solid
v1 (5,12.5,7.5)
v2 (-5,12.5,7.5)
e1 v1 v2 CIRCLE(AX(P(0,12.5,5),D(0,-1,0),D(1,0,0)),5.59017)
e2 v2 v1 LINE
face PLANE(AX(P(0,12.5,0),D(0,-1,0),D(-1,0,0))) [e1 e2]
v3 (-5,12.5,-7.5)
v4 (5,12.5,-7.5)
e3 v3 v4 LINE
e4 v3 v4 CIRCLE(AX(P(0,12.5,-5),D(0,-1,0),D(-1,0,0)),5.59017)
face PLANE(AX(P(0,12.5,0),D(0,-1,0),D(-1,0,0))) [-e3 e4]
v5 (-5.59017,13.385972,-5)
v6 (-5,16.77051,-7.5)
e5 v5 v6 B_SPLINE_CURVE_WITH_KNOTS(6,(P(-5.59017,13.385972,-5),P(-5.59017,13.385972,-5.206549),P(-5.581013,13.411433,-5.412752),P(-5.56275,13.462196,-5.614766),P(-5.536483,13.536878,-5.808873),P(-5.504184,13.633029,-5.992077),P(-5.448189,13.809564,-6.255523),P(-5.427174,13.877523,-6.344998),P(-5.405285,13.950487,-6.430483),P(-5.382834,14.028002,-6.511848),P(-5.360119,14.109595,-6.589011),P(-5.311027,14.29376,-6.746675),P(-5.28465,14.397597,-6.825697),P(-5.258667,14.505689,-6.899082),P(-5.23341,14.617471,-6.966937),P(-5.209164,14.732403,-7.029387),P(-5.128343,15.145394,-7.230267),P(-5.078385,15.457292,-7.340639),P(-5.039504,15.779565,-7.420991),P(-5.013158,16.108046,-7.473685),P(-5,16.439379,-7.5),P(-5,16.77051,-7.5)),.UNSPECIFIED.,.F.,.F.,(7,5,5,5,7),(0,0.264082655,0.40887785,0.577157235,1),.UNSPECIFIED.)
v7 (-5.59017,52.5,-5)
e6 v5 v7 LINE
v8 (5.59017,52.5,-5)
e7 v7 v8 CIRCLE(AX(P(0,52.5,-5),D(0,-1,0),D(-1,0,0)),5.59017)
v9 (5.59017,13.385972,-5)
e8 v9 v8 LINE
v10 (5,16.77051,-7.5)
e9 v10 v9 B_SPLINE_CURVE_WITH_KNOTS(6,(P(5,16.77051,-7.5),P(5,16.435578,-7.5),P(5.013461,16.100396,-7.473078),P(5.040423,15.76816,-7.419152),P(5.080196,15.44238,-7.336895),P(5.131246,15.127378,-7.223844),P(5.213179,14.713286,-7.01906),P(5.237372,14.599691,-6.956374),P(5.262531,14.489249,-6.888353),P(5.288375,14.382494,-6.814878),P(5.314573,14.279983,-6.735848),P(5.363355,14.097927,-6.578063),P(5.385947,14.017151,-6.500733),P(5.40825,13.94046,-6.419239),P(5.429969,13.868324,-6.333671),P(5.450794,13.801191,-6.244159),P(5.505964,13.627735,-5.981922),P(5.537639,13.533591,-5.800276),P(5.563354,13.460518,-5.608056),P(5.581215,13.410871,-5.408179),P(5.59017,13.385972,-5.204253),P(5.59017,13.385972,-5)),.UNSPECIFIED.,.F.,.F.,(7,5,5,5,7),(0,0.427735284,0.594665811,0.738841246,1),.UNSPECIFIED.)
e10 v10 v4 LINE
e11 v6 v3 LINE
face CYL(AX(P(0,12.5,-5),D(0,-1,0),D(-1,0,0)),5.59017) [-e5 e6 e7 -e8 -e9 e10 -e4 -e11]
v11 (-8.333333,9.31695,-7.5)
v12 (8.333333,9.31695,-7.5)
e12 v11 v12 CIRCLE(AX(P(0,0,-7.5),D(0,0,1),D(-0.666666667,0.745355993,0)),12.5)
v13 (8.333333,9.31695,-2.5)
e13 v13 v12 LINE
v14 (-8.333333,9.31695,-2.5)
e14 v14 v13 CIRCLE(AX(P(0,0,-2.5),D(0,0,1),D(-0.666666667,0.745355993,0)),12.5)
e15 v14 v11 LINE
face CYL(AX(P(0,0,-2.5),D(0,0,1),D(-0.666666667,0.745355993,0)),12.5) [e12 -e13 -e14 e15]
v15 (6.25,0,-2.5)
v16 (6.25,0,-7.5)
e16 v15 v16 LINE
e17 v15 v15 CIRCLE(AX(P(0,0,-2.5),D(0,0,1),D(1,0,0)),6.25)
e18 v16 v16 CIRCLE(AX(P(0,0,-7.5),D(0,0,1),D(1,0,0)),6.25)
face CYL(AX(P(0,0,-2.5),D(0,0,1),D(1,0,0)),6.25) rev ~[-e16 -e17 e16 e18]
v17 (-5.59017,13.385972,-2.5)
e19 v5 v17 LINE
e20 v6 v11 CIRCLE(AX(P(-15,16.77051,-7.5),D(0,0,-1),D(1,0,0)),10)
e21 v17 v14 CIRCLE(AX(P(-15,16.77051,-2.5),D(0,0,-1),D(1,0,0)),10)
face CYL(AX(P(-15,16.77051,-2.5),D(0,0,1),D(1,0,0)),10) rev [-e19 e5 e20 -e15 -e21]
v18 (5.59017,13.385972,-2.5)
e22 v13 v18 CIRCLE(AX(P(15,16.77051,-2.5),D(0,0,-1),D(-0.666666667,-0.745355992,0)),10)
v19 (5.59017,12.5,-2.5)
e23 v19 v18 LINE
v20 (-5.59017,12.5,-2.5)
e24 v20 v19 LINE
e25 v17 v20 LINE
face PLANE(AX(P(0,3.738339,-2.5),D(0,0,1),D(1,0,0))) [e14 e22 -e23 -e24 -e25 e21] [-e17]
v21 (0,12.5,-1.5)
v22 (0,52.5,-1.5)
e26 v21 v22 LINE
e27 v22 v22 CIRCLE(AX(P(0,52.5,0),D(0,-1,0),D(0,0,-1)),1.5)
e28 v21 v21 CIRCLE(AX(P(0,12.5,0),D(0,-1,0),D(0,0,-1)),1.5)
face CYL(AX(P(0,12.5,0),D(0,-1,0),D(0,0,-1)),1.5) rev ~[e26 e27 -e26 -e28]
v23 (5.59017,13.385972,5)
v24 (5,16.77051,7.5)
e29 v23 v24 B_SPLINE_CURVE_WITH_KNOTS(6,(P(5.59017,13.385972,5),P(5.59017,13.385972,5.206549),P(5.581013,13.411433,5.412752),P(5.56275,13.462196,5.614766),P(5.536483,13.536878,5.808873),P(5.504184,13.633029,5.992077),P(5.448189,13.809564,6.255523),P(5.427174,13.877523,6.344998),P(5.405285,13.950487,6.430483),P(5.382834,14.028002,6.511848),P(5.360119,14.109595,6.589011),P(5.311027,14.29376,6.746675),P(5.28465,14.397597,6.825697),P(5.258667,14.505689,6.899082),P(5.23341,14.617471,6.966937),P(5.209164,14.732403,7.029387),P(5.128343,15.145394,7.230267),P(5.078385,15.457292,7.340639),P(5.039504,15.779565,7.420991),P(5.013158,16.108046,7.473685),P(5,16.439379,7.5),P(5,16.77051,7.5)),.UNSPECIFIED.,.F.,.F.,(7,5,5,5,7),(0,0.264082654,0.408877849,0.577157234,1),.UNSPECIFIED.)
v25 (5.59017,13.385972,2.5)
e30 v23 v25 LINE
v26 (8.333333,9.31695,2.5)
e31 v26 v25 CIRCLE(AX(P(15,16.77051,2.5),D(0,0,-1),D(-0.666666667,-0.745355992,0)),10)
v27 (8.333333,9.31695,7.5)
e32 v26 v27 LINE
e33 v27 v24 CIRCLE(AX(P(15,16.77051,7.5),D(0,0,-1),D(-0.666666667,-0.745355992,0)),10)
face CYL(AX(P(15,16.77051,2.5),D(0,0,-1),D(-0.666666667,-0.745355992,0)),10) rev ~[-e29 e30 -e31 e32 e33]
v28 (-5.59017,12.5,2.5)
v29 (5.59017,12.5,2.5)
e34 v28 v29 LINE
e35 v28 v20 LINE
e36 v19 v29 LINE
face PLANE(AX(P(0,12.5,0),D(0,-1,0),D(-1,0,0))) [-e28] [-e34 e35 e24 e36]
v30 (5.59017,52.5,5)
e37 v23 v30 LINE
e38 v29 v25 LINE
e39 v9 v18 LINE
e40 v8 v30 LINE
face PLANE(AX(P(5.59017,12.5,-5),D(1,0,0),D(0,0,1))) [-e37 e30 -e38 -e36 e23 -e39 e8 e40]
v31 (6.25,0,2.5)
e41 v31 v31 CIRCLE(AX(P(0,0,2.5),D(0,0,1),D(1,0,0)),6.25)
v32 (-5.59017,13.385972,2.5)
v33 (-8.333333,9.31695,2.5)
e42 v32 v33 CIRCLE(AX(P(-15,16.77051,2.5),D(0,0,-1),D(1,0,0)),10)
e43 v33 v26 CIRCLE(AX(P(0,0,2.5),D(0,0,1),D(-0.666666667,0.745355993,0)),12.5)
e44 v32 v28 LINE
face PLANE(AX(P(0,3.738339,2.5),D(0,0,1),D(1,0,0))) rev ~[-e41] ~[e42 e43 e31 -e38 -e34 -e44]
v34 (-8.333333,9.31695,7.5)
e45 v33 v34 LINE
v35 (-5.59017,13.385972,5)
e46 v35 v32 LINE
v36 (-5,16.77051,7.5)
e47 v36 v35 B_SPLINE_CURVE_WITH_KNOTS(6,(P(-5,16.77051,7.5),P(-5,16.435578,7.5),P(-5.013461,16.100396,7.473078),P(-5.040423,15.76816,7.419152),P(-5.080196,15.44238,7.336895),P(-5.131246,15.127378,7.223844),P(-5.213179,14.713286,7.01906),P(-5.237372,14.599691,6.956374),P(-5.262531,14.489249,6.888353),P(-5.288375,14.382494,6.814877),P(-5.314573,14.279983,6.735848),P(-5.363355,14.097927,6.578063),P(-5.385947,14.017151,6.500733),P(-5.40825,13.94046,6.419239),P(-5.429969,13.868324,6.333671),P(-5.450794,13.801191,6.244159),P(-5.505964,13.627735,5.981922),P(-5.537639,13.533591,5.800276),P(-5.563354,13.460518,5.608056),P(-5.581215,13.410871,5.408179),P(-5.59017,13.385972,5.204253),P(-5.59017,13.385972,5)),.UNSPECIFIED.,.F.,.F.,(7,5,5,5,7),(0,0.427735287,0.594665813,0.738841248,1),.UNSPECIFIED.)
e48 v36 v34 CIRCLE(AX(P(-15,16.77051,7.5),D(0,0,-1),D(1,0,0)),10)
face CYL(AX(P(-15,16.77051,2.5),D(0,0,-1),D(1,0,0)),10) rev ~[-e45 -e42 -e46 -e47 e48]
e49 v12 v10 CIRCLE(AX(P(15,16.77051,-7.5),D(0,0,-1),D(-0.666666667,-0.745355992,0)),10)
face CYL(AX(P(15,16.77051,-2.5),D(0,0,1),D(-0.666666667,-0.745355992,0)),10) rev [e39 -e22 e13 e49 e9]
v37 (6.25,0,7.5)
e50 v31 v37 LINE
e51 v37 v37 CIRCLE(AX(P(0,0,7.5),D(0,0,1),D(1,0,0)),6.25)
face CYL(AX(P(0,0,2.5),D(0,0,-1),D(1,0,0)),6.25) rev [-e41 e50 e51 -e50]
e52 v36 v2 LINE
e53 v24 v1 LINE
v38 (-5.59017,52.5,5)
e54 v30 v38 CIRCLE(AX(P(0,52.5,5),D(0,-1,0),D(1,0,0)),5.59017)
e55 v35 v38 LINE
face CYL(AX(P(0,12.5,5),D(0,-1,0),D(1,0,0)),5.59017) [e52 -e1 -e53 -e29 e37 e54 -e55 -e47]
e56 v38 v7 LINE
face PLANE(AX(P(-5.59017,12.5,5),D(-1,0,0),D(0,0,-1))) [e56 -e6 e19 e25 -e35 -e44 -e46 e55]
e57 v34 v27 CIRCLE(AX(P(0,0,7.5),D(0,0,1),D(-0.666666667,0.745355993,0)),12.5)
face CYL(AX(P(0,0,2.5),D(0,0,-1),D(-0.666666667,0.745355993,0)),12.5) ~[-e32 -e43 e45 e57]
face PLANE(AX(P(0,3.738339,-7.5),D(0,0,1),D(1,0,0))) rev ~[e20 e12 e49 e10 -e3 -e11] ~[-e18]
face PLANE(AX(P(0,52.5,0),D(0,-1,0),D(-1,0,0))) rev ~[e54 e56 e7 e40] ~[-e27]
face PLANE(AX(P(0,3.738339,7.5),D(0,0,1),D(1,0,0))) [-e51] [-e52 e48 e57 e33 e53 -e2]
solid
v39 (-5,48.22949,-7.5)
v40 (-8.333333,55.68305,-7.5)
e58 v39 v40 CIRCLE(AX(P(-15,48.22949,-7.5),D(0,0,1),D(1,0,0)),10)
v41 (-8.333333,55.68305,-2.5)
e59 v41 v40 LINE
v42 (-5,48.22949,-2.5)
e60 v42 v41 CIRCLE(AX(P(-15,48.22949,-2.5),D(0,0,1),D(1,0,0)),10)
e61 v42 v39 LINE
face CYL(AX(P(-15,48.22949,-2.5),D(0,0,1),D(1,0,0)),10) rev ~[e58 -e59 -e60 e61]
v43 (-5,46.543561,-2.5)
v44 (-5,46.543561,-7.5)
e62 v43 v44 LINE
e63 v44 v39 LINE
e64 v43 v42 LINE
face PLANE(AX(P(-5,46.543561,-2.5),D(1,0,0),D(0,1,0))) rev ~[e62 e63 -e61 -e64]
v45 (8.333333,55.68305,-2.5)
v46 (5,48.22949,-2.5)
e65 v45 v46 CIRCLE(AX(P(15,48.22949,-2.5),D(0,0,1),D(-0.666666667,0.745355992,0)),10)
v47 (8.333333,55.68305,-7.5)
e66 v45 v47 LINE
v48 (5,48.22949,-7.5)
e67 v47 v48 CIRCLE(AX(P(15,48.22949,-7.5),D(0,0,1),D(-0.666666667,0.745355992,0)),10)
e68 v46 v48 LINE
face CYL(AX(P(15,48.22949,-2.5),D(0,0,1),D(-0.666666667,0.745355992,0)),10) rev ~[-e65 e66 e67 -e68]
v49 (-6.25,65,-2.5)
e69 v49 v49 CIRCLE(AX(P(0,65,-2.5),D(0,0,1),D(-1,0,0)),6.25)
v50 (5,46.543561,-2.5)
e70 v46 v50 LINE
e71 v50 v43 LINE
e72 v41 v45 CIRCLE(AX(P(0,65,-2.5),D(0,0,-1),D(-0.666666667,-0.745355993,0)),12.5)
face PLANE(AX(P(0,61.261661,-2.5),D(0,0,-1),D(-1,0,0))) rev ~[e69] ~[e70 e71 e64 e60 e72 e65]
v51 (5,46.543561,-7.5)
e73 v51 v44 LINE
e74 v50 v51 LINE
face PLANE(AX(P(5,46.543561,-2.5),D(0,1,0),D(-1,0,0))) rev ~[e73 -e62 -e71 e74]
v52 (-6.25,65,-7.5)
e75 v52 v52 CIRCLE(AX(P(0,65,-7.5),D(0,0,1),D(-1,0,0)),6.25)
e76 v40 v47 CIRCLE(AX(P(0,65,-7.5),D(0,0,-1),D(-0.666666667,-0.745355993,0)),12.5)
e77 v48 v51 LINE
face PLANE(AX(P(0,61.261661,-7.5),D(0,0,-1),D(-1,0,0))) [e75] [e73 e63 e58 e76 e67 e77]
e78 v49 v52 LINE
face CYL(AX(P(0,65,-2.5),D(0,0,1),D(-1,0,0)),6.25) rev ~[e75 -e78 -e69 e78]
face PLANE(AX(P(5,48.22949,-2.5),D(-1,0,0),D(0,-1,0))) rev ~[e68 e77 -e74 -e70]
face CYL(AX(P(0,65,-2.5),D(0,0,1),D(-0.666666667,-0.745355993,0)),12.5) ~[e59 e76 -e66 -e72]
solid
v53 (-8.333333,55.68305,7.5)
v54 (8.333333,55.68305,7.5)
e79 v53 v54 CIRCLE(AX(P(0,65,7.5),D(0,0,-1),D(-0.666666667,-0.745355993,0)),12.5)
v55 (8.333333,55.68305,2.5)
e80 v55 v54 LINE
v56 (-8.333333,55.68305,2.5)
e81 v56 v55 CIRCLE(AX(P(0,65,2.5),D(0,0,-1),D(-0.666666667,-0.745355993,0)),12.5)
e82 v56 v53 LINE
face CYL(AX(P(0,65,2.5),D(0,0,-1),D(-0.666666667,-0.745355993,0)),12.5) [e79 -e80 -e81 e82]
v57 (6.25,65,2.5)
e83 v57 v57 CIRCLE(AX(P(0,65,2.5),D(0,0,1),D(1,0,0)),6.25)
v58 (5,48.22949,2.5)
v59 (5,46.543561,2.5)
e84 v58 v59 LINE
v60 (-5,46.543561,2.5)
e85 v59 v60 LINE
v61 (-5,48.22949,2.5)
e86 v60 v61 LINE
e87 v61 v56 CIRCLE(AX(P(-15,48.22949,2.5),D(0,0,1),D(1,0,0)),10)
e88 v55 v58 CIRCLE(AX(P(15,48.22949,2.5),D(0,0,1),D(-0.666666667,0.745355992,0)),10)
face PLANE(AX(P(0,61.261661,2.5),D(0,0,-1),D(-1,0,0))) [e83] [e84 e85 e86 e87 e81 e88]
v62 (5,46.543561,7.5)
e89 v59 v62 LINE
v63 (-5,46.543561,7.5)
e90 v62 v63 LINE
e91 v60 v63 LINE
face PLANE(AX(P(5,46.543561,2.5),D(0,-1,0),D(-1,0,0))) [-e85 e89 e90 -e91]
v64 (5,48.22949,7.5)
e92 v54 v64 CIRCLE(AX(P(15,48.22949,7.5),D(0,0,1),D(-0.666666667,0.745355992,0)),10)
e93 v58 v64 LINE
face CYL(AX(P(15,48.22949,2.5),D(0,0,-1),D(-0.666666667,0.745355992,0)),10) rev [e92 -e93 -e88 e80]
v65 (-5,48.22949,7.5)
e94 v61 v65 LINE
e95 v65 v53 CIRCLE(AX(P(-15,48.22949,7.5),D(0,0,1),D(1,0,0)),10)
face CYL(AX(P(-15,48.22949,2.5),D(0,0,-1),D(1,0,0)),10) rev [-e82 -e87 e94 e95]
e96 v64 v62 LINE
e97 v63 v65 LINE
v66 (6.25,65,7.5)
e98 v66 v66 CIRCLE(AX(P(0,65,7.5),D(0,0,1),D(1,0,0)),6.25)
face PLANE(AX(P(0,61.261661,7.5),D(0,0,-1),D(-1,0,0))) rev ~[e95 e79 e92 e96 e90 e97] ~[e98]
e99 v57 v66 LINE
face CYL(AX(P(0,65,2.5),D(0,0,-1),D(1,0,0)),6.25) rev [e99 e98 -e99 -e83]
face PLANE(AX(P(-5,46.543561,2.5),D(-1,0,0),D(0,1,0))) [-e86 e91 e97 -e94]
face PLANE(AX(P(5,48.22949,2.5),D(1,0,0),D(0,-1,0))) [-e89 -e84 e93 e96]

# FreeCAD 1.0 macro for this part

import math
import FreeCAD as App
import Part
import Sketcher
from FreeCAD import Vector

doc = App.newDocument("Part")
body = doc.addObject("PartDesign::Body", "Body")

# Sketch on XY plane
sketch1 = body.newObject("Sketcher::SketchObject", "Sketch")
sketch1.AttachmentSupport = (doc.getObject("XY_Plane"), [""])
sketch1.MapMode = "FlatFace"
sketch1.AttachmentOffset = App.Placement(Vector(0, 0, 2.5), App.Rotation())
sketch1.addGeometry([
    Part.LineSegment(Vector(5, 18.456439, 0), Vector(-5, 18.456439, 0)),  # 0
    Part.LineSegment(Vector(-5, 18.456439, 0), Vector(-5, 16.77051, 0)),  # 1
    Part.ArcOfCircle(Part.Circle(Vector(-15, 16.77051, 0), Vector(0, 0, 1), 10), math.radians(-48.189685), math.radians(0)),  # 2
    Part.ArcOfCircle(Part.Circle(Vector(0, 0, 0), Vector(0, 0, 1), 12.5), math.radians(131.810315), math.radians(408.189685)),  # 3
    Part.ArcOfCircle(Part.Circle(Vector(15, 16.77051, 0), Vector(0, 0, 1), 10), math.radians(180), math.radians(228.189685)),  # 4
    Part.LineSegment(Vector(5, 16.77051, 0), Vector(5, 18.456439, 0)),  # 5
    Part.Circle(Vector(0, 0, 0), Vector(0, 0, 1), 6.25),  # 6
], False)
sketch1.addConstraint([
    Sketcher.Constraint("Coincident", 0, 2, 1, 1),
    Sketcher.Constraint("Tangent", 1, 2, 2, 2),
    Sketcher.Constraint("Tangent", 2, 1, 3, 1),
    Sketcher.Constraint("Tangent", 3, 2, 4, 2),
    Sketcher.Constraint("Tangent", 4, 1, 5, 1),
    Sketcher.Constraint("Coincident", 5, 2, 0, 1),
    Sketcher.Constraint("Horizontal", 0),
    Sketcher.Constraint("Vertical", 1),
    Sketcher.Constraint("Vertical", 5),
    Sketcher.Constraint("Coincident", 3, 3, -1, 1),
    Sketcher.Constraint("Coincident", 6, 3, -1, 1),
    Sketcher.Constraint("Equal", 2, 4),
    Sketcher.Constraint("Horizontal", 2, 3, 4, 3),
    Sketcher.Constraint("Radius", 2, 10.0),
    Sketcher.Constraint("Diameter", 6, 12.5),
    Sketcher.Constraint("Radius", 3, 12.5),
    Sketcher.Constraint("DistanceX", 0, 2, 0, 1, 10.0),
    Sketcher.Constraint("DistanceY", 1, 2, 1, 1, 1.685929),
])
pad1 = body.newObject("PartDesign::Pad", "Pad")
pad1.Profile = sketch1
pad1.Length = 5
body2 = doc.addObject("PartDesign::Body", "Body001")

# Sketch on XY plane
sketch2 = body2.newObject("Sketcher::SketchObject", "Sketch001")
sketch2.AttachmentSupport = (doc.getObject("XY_Plane001"), [""])
sketch2.MapMode = "FlatFace"
sketch2.AttachmentOffset = App.Placement(Vector(0, 0, 2.5), App.Rotation())
sketch2.addGeometry([
    Part.LineSegment(Vector(-5, 48.22949, 0), Vector(-5, 46.543561, 0)),  # 0
    Part.LineSegment(Vector(-5, 46.543561, 0), Vector(5, 46.543561, 0)),  # 1
    Part.LineSegment(Vector(5, 46.543561, 0), Vector(5, 48.22949, 0)),  # 2
    Part.ArcOfCircle(Part.Circle(Vector(15, 48.22949, 0), Vector(0, 0, 1), 10), math.radians(131.810315), math.radians(180)),  # 3
    Part.ArcOfCircle(Part.Circle(Vector(0, 65, 0), Vector(0, 0, 1), 12.5), math.radians(-48.189685), math.radians(228.189685)),  # 4
    Part.ArcOfCircle(Part.Circle(Vector(-15, 48.22949, 0), Vector(0, 0, 1), 10), math.radians(0), math.radians(48.189685)),  # 5
    Part.Circle(Vector(0, 65, 0), Vector(0, 0, 1), 6.25),  # 6
], False)
sketch2.addConstraint([
    Sketcher.Constraint("Coincident", 0, 2, 1, 1),
    Sketcher.Constraint("Coincident", 1, 2, 2, 1),
    Sketcher.Constraint("Tangent", 2, 2, 3, 2),
    Sketcher.Constraint("Tangent", 3, 1, 4, 1),
    Sketcher.Constraint("Tangent", 4, 2, 5, 2),
    Sketcher.Constraint("Tangent", 5, 1, 0, 1),
    Sketcher.Constraint("Vertical", 0),
    Sketcher.Constraint("Horizontal", 1),
    Sketcher.Constraint("Vertical", 2),
    Sketcher.Constraint("Coincident", 6, 3, 4, 3),
    Sketcher.Constraint("Equal", 3, 5),
    Sketcher.Constraint("Symmetric", 3, 3, 5, 3, -2),
    Sketcher.Constraint("Radius", 3, 10.0),
    Sketcher.Constraint("Diameter", 6, 12.5),
    Sketcher.Constraint("Radius", 4, 12.5),
    Sketcher.Constraint("DistanceX", 1, 1, 1, 2, 10.0),
    Sketcher.Constraint("DistanceY", -1, 1, 4, 3, 65.0),
    Sketcher.Constraint("DistanceY", 0, 2, 0, 1, 1.685929),
])
pad2 = body2.newObject("PartDesign::Pad", "Pad001")
pad2.Profile = sketch2
pad2.Length = 5
body3 = doc.addObject("PartDesign::Body", "Body002")

# Sketch on XY plane
sketch3 = body3.newObject("Sketcher::SketchObject", "Sketch002")
sketch3.AttachmentSupport = (doc.getObject("XY_Plane002"), [""])
sketch3.MapMode = "FlatFace"
sketch3.AttachmentOffset = App.Placement(Vector(0, 0, -2.5), App.Rotation())
sketch3.addGeometry([
    Part.LineSegment(Vector(5, 18.456439, 0), Vector(-5, 18.456439, 0)),  # 0
    Part.LineSegment(Vector(-5, 18.456439, 0), Vector(-5, 16.77051, 0)),  # 1
    Part.ArcOfCircle(Part.Circle(Vector(-15, 16.77051, 0), Vector(0, 0, 1), 10), math.radians(-48.189685), math.radians(0)),  # 2
    Part.ArcOfCircle(Part.Circle(Vector(0, 0, 0), Vector(0, 0, 1), 12.5), math.radians(131.810315), math.radians(408.189685)),  # 3
    Part.ArcOfCircle(Part.Circle(Vector(15, 16.77051, 0), Vector(0, 0, 1), 10), math.radians(180), math.radians(228.189685)),  # 4
    Part.LineSegment(Vector(5, 16.77051, 0), Vector(5, 18.456439, 0)),  # 5
    Part.Circle(Vector(0, 0, 0), Vector(0, 0, 1), 6.25),  # 6
], False)
sketch3.addConstraint([
    Sketcher.Constraint("Coincident", 0, 2, 1, 1),
    Sketcher.Constraint("Tangent", 1, 2, 2, 2),
    Sketcher.Constraint("Tangent", 2, 1, 3, 1),
    Sketcher.Constraint("Tangent", 3, 2, 4, 2),
    Sketcher.Constraint("Tangent", 4, 1, 5, 1),
    Sketcher.Constraint("Coincident", 5, 2, 0, 1),
    Sketcher.Constraint("Horizontal", 0),
    Sketcher.Constraint("Vertical", 1),
    Sketcher.Constraint("Vertical", 5),
    Sketcher.Constraint("Coincident", 3, 3, -1, 1),
    Sketcher.Constraint("Coincident", 6, 3, -1, 1),
    Sketcher.Constraint("Equal", 2, 4),
    Sketcher.Constraint("Horizontal", 2, 3, 4, 3),
    Sketcher.Constraint("Radius", 2, 10.0),
    Sketcher.Constraint("Diameter", 6, 12.5),
    Sketcher.Constraint("Radius", 3, 12.5),
    Sketcher.Constraint("DistanceX", 0, 2, 0, 1, 10.0),
    Sketcher.Constraint("DistanceY", 1, 2, 1, 1, 1.685929),
])
pad3 = body3.newObject("PartDesign::Pad", "Pad002")
pad3.Profile = sketch3
pad3.Length = 5
pad3.Reversed = True
body4 = doc.addObject("PartDesign::Body", "Body003")

# Sketch on XY plane
sketch4 = body4.newObject("Sketcher::SketchObject", "Sketch003")
sketch4.AttachmentSupport = (doc.getObject("XY_Plane003"), [""])
sketch4.MapMode = "FlatFace"
sketch4.AttachmentOffset = App.Placement(Vector(0, 0, -2.5), App.Rotation())
sketch4.addGeometry([
    Part.LineSegment(Vector(-5, 48.22949, 0), Vector(-5, 46.543561, 0)),  # 0
    Part.LineSegment(Vector(-5, 46.543561, 0), Vector(5, 46.543561, 0)),  # 1
    Part.LineSegment(Vector(5, 46.543561, 0), Vector(5, 48.22949, 0)),  # 2
    Part.ArcOfCircle(Part.Circle(Vector(15, 48.22949, 0), Vector(0, 0, 1), 10), math.radians(131.810315), math.radians(180)),  # 3
    Part.ArcOfCircle(Part.Circle(Vector(0, 65, 0), Vector(0, 0, 1), 12.5), math.radians(-48.189685), math.radians(228.189685)),  # 4
    Part.ArcOfCircle(Part.Circle(Vector(-15, 48.22949, 0), Vector(0, 0, 1), 10), math.radians(0), math.radians(48.189685)),  # 5
    Part.Circle(Vector(0, 65, 0), Vector(0, 0, 1), 6.25),  # 6
], False)
sketch4.addConstraint([
    Sketcher.Constraint("Coincident", 0, 2, 1, 1),
    Sketcher.Constraint("Coincident", 1, 2, 2, 1),
    Sketcher.Constraint("Tangent", 2, 2, 3, 2),
    Sketcher.Constraint("Tangent", 3, 1, 4, 1),
    Sketcher.Constraint("Tangent", 4, 2, 5, 2),
    Sketcher.Constraint("Tangent", 5, 1, 0, 1),
    Sketcher.Constraint("Vertical", 0),
    Sketcher.Constraint("Horizontal", 1),
    Sketcher.Constraint("Vertical", 2),
    Sketcher.Constraint("Coincident", 6, 3, 4, 3),
    Sketcher.Constraint("Equal", 3, 5),
    Sketcher.Constraint("Symmetric", 3, 3, 5, 3, -2),
    Sketcher.Constraint("Radius", 3, 10.0),
    Sketcher.Constraint("Diameter", 6, 12.5),
    Sketcher.Constraint("Radius", 4, 12.5),
    Sketcher.Constraint("DistanceX", 1, 1, 1, 2, 10.0),
    Sketcher.Constraint("DistanceY", -1, 1, 4, 3, 65.0),
    Sketcher.Constraint("DistanceY", 0, 2, 0, 1, 1.685929),
])
pad4 = body4.newObject("PartDesign::Pad", "Pad003")
pad4.Profile = sketch4
pad4.Length = 5
pad4.Reversed = True
body.AllowCompound = True
doc.recompute()

boolean = body.newObject("PartDesign::Boolean", "Boolean")
boolean.Type = "Fuse"
boolean.addObjects([body3])

# Sketch on XZ plane
sketch5 = body.newObject("Sketcher::SketchObject", "Sketch004")
sketch5.AttachmentSupport = (doc.getObject("XZ_Plane"), [""])
sketch5.MapMode = "FlatFace"
sketch5.AttachmentOffset = App.Placement(Vector(0, 0, -12.5), App.Rotation())
sketch5.addGeometry([
    Part.LineSegment(Vector(5.59017, 5, 0), Vector(5.59017, -5, 0)),
    Part.ArcOfCircle(Part.Circle(Vector(0, -5, 0), Vector(0, 0, 1), 5.59017), math.radians(180), math.radians(360)),
    Part.LineSegment(Vector(-5.59017, -5, 0), Vector(-5.59017, 5, 0)),
    Part.ArcOfCircle(Part.Circle(Vector(0, 5, 0), Vector(0, 0, 1), 5.59017), math.radians(0), math.radians(180)),
], False)
sketch5.addConstraint([
    Sketcher.Constraint("Tangent", 0, 2, 1, 2),
    Sketcher.Constraint("Tangent", 1, 1, 2, 1),
    Sketcher.Constraint("Tangent", 2, 2, 3, 2),
    Sketcher.Constraint("Tangent", 3, 1, 0, 1),
    Sketcher.Constraint("Vertical", 0),
    Sketcher.Constraint("Vertical", 2),
    Sketcher.Constraint("Symmetric", 1, 3, 3, 3, -1, 1),
    Sketcher.Constraint("DistanceY", 0, 2, 0, 1, 10.0),
    Sketcher.Constraint("Radius", 1, 5.59017),
])
pad5 = body.newObject("PartDesign::Pad", "Pad004")
pad5.Profile = sketch5
pad5.Length = 40
pad5.Reversed = True

# Sketch on XZ plane
sketch6 = body.newObject("Sketcher::SketchObject", "Sketch005")
sketch6.AttachmentSupport = (doc.getObject("XZ_Plane"), [""])
sketch6.MapMode = "FlatFace"
sketch6.AttachmentOffset = App.Placement(Vector(0, 0, -12.5), App.Rotation())
sketch6.addGeometry(Part.Circle(Vector(0, 0, 0), Vector(0, 0, 1), 1.5), False)
sketch6.addConstraint([
    Sketcher.Constraint("Coincident", 0, 3, -1, 1),
    Sketcher.Constraint("Diameter", 0, 3.0),
])
pocket1 = body.newObject("PartDesign::Pocket", "Pocket")
pocket1.Profile = sketch6
pocket1.Length = 64

doc.recompute()
